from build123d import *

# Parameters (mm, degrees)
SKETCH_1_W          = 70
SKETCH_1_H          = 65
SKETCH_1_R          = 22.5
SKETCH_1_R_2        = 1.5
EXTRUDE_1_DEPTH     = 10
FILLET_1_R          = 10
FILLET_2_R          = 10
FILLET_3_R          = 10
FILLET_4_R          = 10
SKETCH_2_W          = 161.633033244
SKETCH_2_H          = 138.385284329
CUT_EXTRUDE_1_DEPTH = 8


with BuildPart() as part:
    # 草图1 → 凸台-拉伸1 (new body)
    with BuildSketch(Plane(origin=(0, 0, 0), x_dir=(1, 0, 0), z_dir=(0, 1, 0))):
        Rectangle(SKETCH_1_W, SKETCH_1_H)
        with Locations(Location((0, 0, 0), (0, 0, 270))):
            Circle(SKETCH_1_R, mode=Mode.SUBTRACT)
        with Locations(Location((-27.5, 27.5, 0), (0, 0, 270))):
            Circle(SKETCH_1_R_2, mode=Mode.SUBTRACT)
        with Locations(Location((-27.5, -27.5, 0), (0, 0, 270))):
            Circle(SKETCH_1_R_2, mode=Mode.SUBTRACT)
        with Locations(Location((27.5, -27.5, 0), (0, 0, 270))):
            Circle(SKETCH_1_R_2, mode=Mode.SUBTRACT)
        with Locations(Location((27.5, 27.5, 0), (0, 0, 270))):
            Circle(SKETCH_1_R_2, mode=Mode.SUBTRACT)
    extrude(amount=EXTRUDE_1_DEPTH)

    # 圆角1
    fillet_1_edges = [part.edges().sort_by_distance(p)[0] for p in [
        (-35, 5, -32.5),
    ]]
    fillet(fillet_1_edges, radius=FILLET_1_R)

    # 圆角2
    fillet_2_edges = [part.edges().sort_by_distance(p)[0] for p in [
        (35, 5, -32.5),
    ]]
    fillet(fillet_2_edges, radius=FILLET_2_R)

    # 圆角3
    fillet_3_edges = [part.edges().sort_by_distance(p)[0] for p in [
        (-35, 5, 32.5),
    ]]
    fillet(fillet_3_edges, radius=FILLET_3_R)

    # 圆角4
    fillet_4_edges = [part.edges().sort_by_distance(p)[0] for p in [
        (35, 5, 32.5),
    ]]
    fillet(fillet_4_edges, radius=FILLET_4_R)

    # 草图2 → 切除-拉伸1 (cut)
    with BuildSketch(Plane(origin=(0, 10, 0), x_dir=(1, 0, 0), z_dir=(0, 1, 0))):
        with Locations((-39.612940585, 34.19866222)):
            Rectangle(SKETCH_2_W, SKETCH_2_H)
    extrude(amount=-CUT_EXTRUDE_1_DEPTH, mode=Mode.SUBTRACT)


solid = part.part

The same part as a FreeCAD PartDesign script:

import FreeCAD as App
import Part
import Sketcher

V = App.Vector


def edges_at(feature, points):
    """Names of the edges that pass closest to the given points."""
    edges = feature.Shape.Edges
    near = lambda p: min(range(len(edges)), key=lambda i: edges[i].distToShape(Part.Vertex(*p))[0])
    return sorted({f"Edge{near(p) + 1}" for p in points})


def add_polygon(sketch, points):
    """Adds a closed chain of lines whose ends are joined by coincident constraints."""
    first, n = sketch.GeometryCount, len(points)
    for a, b in zip(points, points[1:] + points[:1]):
        sketch.addGeometry(Part.LineSegment(App.Vector(*a, 0), App.Vector(*b, 0)), False)
    for i in range(n):
        sketch.addConstraint(Sketcher.Constraint("Coincident", first + i, 2, first + (i + 1) % n, 1))

doc = App.newDocument("Part")
params = doc.addObject("Spreadsheet::Sheet", "Params")
for row, (alias, value) in enumerate([
    ("sketch1_diameter", "3 mm"),
    ("sketch1_diameter2", "45 mm"),
    ("sketch1_width", "70 mm"),
    ("sketch1_height", "65 mm"),
    ("pad1_length", "10 mm"),
    ("fillet_radius", "10 mm"),
    ("fillet2_radius", "10 mm"),
    ("fillet3_radius", "10 mm"),
    ("fillet4_radius", "10 mm"),
    ("pocket1_length", "8 mm"),
], start=1):
    params.set(f"A{row}", alias)
    params.set(f"B{row}", "=" + value)
    params.setAlias(f"B{row}", alias)

body = doc.addObject("PartDesign::Body", "Body")

# Sketch on XZ plane
sketch1 = body.newObject("Sketcher::SketchObject", "Sketch")
sketch1.AttachmentSupport = (doc.getObject("XZ_Plane"), [""])
sketch1.MapMode = "FlatFace"
add_polygon(sketch1, [(-35, -32.5), (-35, 32.5), (35, 32.5), (35, -32.5)])  # lines 0-3
sketch1.addGeometry(Part.Circle(V(-27.5, 27.5, 0), V(0, 0, 1), 1.5), False)  # 4
sketch1.addGeometry(Part.Circle(V(27.5, 27.5, 0), V(0, 0, 1), 1.5), False)  # 5
sketch1.addGeometry(Part.Circle(V(-27.5, -27.5, 0), V(0, 0, 1), 1.5), False)  # 6
sketch1.addGeometry(Part.Circle(V(0, 0, 0), V(0, 0, 1), 22.5), False)  # 7
sketch1.addGeometry(Part.Circle(V(27.5, -27.5, 0), V(0, 0, 1), 1.5), False)  # 8
sketch1.addConstraint([
    Sketcher.Constraint("Vertical", 0),
    Sketcher.Constraint("Horizontal", 1),
    Sketcher.Constraint("Vertical", 2),
    Sketcher.Constraint("Horizontal", 3),
    Sketcher.Constraint("Coincident", 7, 3, -1, 1),
    Sketcher.Constraint("Equal", 4, 5),
    Sketcher.Constraint("Equal", 5, 6),
    Sketcher.Constraint("Equal", 6, 8),
    Sketcher.Constraint("Symmetric", 5, 3, 6, 3, -1, 1),
    Sketcher.Constraint("Symmetric", 4, 3, 8, 3, -1, 1),
    Sketcher.Constraint("Symmetric", 0, 2, 2, 2, -1, 1),
    Sketcher.Constraint("Symmetric", 4, 3, 5, 3, -2),
    Sketcher.Constraint("Diameter", 4, 3.0),
    Sketcher.Constraint("Diameter", 7, 45.0),
    Sketcher.Constraint("DistanceX", 1, 1, 1, 2, 70.0),
    Sketcher.Constraint("DistanceY", 0, 1, 0, 2, 65.0),
    Sketcher.Constraint("DistanceX", 4, 3, 5, 3, 55.0),
    Sketcher.Constraint("DistanceY", 6, 3, 4, 3, 55.0),
])
sketch1.setExpression("Constraints[16]", "Params.sketch1_diameter")
sketch1.setExpression("Constraints[17]", "Params.sketch1_diameter2")
sketch1.setExpression("Constraints[18]", "Params.sketch1_width")
sketch1.setExpression("Constraints[19]", "Params.sketch1_height")
pad1 = body.newObject("PartDesign::Pad", "Pad")
pad1.Profile = sketch1
pad1.setExpression("Length", "Params.pad1_length")
pad1.Reversed = True
doc.recompute()

fillet = body.newObject("PartDesign::Fillet", "Fillet")
fillet.Base = (pad1, edges_at(pad1, [(-35, 5, -32.5)]))
fillet.setExpression("Radius", "Params.fillet_radius")
doc.recompute()

fillet2 = body.newObject("PartDesign::Fillet", "Fillet001")
fillet2.Base = (fillet, edges_at(fillet, [(35, 5, -32.5)]))
fillet2.setExpression("Radius", "Params.fillet2_radius")
doc.recompute()

fillet3 = body.newObject("PartDesign::Fillet", "Fillet002")
fillet3.Base = (fillet2, edges_at(fillet2, [(-35, 5, 32.5)]))
fillet3.setExpression("Radius", "Params.fillet3_radius")
doc.recompute()

fillet4 = body.newObject("PartDesign::Fillet", "Fillet003")
fillet4.Base = (fillet3, edges_at(fillet3, [(35, 5, 32.5)]))
fillet4.setExpression("Radius", "Params.fillet4_radius")

# Sketch on XZ plane
sketch2 = body.newObject("Sketcher::SketchObject", "Sketch001")
sketch2.AttachmentSupport = (doc.getObject("XZ_Plane"), [""])
sketch2.MapMode = "FlatFace"
sketch2.AttachmentOffset = App.Placement(V(0, 0, -10), App.Rotation())
add_polygon(sketch2, [(-120, -103), (-120, 35), (41, 35), (41, -103)])  # lines 0-3
sketch2.addConstraint([
    Sketcher.Constraint("Vertical", 0),
    Sketcher.Constraint("Horizontal", 1),
    Sketcher.Constraint("Vertical", 2),
    Sketcher.Constraint("Horizontal", 3),
    Sketcher.Constraint("DistanceX", 1, 1, 1, 2, 161.633033),
    Sketcher.Constraint("DistanceY", 0, 1, 0, 2, 138.385284),
    Sketcher.Constraint("DistanceY", -1, 1, 0, 2, 34.99398),
    Sketcher.Constraint("DistanceX", 0, 2, -1, 1, 120.429457),
])
pocket1 = body.newObject("PartDesign::Pocket", "Pocket")
pocket1.Profile = sketch2
pocket1.setExpression("Length", "Params.pocket1_length")
pocket1.Reversed = True

doc.recompute()
